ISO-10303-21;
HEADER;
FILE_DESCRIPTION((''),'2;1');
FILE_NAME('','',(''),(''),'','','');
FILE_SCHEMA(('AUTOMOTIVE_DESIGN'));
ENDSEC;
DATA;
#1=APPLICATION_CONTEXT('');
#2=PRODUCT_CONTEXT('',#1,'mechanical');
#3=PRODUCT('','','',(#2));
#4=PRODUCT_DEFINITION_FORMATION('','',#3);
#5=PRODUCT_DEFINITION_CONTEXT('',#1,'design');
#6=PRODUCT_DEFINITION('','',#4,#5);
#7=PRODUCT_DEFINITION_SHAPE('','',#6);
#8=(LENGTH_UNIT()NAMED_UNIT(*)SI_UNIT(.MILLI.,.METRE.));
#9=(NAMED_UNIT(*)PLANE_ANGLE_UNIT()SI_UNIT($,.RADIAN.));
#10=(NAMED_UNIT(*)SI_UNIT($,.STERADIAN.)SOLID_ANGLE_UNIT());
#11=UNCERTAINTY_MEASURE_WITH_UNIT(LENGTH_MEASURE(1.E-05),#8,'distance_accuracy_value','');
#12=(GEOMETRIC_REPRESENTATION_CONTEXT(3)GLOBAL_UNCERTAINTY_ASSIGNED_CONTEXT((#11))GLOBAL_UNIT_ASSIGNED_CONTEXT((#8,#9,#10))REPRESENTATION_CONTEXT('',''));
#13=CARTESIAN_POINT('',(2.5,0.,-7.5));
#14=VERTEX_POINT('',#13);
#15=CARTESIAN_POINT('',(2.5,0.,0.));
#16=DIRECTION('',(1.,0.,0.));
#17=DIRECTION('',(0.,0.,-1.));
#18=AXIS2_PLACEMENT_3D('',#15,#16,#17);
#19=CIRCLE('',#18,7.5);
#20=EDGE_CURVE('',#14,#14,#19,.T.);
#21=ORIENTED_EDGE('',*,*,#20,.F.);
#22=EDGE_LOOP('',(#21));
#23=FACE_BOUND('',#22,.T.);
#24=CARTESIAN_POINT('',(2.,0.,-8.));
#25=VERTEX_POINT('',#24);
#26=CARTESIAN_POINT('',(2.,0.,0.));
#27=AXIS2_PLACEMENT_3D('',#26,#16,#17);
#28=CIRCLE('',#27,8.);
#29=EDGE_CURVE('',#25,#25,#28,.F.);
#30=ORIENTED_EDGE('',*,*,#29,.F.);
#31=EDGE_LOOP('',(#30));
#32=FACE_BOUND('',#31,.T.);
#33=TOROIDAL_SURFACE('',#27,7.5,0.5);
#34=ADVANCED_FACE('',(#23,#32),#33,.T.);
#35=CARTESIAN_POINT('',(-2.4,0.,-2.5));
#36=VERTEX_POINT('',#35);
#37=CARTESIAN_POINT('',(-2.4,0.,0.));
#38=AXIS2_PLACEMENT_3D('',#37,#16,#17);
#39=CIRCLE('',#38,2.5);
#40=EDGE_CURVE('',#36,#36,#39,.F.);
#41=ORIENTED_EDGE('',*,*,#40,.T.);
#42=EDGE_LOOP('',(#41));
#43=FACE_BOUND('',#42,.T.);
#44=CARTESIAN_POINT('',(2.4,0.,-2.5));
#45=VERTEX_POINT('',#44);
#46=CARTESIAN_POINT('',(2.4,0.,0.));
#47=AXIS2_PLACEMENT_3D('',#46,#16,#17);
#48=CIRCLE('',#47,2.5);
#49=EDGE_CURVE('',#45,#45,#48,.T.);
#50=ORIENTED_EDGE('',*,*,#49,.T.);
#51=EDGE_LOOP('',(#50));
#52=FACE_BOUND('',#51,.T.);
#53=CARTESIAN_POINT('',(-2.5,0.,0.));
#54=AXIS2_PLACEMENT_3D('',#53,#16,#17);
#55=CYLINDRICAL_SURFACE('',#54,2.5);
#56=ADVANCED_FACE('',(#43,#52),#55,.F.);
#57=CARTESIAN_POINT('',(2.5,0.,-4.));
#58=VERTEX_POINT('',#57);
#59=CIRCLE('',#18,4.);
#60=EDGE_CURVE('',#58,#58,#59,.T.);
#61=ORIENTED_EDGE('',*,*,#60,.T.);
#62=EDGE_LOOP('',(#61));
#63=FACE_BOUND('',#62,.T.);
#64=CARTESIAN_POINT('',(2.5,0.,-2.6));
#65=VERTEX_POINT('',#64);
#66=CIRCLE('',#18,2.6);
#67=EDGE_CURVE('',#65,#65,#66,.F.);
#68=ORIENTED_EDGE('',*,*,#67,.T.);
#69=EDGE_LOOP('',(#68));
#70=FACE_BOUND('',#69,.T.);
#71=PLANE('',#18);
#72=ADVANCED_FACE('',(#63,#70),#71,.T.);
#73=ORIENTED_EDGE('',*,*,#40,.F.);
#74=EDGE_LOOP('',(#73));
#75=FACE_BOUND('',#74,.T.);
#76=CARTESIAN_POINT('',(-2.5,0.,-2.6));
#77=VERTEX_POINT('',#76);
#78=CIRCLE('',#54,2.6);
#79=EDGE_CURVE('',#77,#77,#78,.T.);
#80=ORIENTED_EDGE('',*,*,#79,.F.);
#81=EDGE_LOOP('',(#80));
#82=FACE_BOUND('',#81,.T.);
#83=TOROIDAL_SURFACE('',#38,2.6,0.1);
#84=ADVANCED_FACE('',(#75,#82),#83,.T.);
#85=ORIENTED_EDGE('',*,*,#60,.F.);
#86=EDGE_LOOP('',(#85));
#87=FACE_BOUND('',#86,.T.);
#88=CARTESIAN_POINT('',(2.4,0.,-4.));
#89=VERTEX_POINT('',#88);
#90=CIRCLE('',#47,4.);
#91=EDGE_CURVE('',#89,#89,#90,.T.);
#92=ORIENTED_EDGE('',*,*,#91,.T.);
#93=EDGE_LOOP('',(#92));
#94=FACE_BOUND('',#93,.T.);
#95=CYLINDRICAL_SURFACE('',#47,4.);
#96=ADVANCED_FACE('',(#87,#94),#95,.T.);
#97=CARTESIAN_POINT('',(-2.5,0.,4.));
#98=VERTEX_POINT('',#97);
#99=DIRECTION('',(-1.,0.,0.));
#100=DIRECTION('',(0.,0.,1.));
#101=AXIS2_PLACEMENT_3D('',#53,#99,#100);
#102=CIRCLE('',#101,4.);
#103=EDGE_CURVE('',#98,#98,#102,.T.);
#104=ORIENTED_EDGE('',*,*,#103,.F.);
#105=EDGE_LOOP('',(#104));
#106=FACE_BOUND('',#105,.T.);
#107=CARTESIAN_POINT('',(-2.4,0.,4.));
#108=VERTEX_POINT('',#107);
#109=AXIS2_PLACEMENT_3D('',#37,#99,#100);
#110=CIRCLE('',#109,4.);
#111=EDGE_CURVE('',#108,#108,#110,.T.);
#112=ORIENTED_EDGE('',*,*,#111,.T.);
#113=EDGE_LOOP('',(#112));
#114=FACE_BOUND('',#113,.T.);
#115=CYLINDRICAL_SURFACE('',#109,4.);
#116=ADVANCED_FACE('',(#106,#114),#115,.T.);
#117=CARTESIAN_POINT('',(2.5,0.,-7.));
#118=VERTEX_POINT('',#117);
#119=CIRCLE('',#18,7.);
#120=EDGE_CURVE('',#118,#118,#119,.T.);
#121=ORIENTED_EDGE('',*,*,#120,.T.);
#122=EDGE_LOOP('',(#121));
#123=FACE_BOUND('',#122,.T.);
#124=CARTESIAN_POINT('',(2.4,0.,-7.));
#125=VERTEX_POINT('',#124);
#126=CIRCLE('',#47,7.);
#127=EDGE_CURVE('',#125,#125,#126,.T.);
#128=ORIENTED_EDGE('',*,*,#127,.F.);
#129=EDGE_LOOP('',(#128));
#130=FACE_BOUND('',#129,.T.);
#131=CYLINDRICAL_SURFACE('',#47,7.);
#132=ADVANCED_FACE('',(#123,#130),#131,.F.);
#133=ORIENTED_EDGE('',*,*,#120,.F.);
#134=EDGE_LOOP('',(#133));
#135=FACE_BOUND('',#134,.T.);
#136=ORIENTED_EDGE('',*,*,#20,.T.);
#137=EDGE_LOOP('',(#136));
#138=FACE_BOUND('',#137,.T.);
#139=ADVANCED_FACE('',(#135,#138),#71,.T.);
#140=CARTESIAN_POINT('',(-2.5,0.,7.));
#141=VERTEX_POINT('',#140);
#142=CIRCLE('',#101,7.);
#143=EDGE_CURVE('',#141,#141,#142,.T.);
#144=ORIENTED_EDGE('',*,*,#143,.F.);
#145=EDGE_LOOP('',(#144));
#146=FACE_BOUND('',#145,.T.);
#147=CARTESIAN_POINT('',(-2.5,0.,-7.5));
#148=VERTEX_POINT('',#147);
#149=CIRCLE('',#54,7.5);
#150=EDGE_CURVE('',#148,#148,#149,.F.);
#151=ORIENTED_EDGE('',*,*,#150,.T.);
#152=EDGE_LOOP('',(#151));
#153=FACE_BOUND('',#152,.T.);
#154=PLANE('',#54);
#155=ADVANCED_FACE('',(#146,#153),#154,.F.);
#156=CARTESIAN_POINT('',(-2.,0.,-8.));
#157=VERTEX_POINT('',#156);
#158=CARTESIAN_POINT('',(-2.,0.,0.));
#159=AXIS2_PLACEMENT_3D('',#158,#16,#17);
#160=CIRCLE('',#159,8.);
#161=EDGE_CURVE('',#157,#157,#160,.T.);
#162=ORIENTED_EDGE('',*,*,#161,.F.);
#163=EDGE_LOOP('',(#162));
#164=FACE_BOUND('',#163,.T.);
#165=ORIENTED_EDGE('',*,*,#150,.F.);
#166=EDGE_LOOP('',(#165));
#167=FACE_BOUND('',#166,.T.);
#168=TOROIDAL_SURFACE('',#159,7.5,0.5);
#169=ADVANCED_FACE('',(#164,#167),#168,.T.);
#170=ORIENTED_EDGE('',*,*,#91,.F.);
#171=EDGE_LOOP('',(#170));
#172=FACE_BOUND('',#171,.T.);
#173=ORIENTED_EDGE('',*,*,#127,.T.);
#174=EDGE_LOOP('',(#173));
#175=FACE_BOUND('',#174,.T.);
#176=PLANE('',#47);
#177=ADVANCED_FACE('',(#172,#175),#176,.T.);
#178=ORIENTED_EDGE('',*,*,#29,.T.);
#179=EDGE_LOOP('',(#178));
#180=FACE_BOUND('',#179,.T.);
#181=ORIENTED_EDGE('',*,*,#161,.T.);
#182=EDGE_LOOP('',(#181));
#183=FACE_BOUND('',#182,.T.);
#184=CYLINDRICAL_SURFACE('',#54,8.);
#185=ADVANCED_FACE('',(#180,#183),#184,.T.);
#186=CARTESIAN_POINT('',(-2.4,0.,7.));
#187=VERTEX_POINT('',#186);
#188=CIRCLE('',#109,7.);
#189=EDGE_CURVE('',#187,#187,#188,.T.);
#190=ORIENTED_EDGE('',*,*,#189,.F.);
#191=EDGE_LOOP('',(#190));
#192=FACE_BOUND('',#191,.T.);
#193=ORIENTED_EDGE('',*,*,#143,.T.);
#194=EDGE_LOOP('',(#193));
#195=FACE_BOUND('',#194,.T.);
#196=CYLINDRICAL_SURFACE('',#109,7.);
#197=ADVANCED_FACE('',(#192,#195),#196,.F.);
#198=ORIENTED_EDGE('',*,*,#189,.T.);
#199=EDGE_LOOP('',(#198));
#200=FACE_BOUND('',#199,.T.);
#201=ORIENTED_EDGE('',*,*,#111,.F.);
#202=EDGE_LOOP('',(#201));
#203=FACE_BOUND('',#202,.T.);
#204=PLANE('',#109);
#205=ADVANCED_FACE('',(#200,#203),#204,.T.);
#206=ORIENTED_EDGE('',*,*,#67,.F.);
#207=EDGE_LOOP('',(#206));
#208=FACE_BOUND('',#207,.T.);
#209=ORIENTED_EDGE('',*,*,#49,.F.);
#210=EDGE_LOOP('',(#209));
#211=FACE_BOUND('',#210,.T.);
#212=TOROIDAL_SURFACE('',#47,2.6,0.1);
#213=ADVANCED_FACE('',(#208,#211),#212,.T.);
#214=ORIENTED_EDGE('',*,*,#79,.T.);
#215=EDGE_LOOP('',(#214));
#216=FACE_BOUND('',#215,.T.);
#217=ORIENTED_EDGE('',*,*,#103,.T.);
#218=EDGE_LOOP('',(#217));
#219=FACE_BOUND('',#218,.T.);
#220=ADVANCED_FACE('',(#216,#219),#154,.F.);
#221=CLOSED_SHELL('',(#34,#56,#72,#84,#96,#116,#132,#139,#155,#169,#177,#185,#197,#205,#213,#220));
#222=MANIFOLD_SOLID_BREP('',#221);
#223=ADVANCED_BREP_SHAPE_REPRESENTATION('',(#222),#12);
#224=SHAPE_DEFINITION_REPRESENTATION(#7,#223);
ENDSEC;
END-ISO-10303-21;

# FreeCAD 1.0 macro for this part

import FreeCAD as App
import Part
import Sketcher

V = App.Vector


def edges_at(feature, points):
    """Names of the edges that pass closest to the given points."""
    edges = feature.Shape.Edges
    near = lambda p: min(range(len(edges)), key=lambda i: edges[i].distToShape(Part.Vertex(*p))[0])
    return sorted({f"Edge{near(p) + 1}" for p in points})

doc = App.newDocument("Part")
body = doc.addObject("PartDesign::Body", "Body")

# Sketch on YZ plane
sketch1 = doc.addObject("Sketcher::SketchObject", "Sketch")
body.addObject(sketch1)
sketch1.AttachmentSupport = (doc.YZ_Plane, [""])
sketch1.MapMode = "FlatFace"
sketch1.addGeometry([
    Part.Circle(V(0, 0, 0), V(0, 0, 1), 8),
    Part.Circle(V(0, 0, 0), V(0, 0, 1), 2.5),
], False)
sketch1.addConstraint([
    Sketcher.Constraint("Coincident", 0, 3, -1, 1),
    Sketcher.Constraint("Coincident", 1, 3, -1, 1),
    Sketcher.Constraint("Diameter", 0, 16.0),
    Sketcher.Constraint("Diameter", 1, 5.0),
])
pad1 = doc.addObject("PartDesign::Pad", "Pad")
body.addObject(pad1)
pad1.Profile = sketch1
pad1.Type = "TwoLengths"
pad1.Length = 2.5
pad1.Length2 = 2.5
doc.recompute()

fillet = doc.addObject("PartDesign::Fillet", "Fillet")
body.addObject(fillet)
fillet.Base = (pad1, edges_at(pad1, [(-2.5, 0, 8), (2.5, 0, 8)]))
fillet.Radius = 0.5
doc.recompute()

fillet2 = doc.addObject("PartDesign::Fillet", "Fillet001")
body.addObject(fillet2)
fillet2.Base = (fillet, edges_at(fillet, [(-2.5, 0, 2.5), (2.5, 0, 2.5)]))
fillet2.Radius = 0.1

# Sketch on YZ plane
sketch2 = doc.addObject("Sketcher::SketchObject", "Sketch001")
body.addObject(sketch2)
sketch2.AttachmentSupport = (doc.YZ_Plane, [""])
sketch2.MapMode = "FlatFace"
sketch2.AttachmentOffset = App.Placement(V(0, 0, -2.5), App.Rotation())
sketch2.addGeometry([
    Part.Circle(V(0, 0, 0), V(0, 0, 1), 7),
    Part.Circle(V(0, 0, 0), V(0, 0, 1), 4),
], False)
sketch2.addConstraint([
    Sketcher.Constraint("Coincident", 0, 3, -1, 1),
    Sketcher.Constraint("Coincident", 1, 3, -1, 1),
    Sketcher.Constraint("Diameter", 0, 14.0),
    Sketcher.Constraint("Diameter", 1, 8.0),
])
pocket1 = doc.addObject("PartDesign::Pocket", "Pocket")
body.addObject(pocket1)
pocket1.Profile = sketch2
pocket1.Length = 0.1
pocket1.Reversed = True

# Sketch on YZ plane
sketch3 = doc.addObject("Sketcher::SketchObject", "Sketch002")
body.addObject(sketch3)
sketch3.AttachmentSupport = (doc.YZ_Plane, [""])
sketch3.MapMode = "FlatFace"
sketch3.AttachmentOffset = App.Placement(V(0, 0, 2.4), App.Rotation())
sketch3.addGeometry([
    Part.Circle(V(0, 0, 0), V(0, 0, 1), 7),
    Part.Circle(V(0, 0, 0), V(0, 0, 1), 4),
], False)
sketch3.addConstraint([
    Sketcher.Constraint("Coincident", 0, 3, -1, 1),
    Sketcher.Constraint("Coincident", 1, 3, -1, 1),
    Sketcher.Constraint("Diameter", 0, 14.0),
    Sketcher.Constraint("Diameter", 1, 8.0),
])
pocket2 = doc.addObject("PartDesign::Pocket", "Pocket001")
body.addObject(pocket2)
pocket2.Profile = sketch3
pocket2.Length = 0.1
pocket2.Reversed = True

doc.recompute()
